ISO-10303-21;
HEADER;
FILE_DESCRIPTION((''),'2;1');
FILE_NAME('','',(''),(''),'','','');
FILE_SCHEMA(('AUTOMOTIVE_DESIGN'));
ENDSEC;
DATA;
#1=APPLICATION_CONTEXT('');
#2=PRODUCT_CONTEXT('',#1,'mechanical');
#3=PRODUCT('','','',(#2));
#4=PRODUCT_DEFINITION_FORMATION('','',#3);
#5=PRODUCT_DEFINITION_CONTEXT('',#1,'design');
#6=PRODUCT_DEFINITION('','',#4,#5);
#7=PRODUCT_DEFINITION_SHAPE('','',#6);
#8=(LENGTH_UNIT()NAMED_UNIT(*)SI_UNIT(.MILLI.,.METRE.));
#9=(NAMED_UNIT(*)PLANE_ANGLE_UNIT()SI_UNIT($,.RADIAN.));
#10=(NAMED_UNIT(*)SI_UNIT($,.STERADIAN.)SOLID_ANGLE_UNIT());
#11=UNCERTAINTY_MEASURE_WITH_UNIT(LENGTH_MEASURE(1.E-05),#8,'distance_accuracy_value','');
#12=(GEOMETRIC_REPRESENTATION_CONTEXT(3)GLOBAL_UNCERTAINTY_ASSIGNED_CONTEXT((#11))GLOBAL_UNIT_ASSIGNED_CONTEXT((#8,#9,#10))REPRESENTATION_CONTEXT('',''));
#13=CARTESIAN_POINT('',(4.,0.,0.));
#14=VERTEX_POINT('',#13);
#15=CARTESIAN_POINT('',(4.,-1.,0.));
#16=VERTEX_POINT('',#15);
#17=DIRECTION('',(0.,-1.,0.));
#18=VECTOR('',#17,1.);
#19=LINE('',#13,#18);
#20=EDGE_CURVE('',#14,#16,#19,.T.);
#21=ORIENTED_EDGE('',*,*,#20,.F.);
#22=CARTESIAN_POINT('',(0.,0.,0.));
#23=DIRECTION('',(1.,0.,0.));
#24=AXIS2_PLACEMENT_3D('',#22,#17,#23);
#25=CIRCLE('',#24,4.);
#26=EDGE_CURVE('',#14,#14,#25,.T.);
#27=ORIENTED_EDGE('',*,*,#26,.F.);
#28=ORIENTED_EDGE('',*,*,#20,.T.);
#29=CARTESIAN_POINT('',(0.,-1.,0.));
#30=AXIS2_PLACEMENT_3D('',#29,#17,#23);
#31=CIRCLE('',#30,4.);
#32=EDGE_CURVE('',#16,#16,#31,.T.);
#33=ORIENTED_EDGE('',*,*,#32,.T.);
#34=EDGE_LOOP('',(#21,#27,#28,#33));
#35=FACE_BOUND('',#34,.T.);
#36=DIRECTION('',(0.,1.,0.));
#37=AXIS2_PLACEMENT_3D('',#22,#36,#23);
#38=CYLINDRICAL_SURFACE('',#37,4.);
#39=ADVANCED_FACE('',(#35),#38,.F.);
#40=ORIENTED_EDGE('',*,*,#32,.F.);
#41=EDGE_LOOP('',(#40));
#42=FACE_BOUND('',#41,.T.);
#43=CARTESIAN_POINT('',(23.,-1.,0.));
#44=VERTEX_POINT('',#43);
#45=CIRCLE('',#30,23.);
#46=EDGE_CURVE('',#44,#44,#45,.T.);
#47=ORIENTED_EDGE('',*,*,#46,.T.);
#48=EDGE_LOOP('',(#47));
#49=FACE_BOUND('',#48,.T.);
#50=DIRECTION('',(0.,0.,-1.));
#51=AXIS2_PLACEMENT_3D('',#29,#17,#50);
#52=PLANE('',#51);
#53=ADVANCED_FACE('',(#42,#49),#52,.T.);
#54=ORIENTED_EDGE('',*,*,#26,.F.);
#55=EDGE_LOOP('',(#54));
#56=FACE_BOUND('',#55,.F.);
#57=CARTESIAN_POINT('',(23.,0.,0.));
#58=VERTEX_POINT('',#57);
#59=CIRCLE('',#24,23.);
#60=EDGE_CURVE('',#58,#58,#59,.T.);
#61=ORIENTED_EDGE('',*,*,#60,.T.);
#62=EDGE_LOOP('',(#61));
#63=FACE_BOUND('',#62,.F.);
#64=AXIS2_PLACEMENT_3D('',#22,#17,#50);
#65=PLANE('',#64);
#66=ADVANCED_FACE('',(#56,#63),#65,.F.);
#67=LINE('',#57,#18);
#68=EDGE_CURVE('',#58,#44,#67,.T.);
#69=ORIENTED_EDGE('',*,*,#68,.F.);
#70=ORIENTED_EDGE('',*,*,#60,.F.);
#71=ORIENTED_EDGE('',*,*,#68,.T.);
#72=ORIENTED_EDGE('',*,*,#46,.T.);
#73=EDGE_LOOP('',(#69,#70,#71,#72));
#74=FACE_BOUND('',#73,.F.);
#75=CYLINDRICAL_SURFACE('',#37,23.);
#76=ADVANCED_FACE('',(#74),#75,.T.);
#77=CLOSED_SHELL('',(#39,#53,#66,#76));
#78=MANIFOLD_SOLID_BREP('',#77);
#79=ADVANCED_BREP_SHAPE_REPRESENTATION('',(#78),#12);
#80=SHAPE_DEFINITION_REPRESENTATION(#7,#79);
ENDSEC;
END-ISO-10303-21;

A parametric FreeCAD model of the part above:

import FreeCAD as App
import Part
import Sketcher
Q = App.Units.Quantity

doc = App.newDocument("Part")
body = doc.addObject("PartDesign::Body", "Body")

# Sketch on XZ plane
sketch1 = body.newObject("Sketcher::SketchObject", "Sketch")
sketch1.AttachmentSupport = (doc.getObject("XZ_Plane"), [""])
sketch1.MapMode = "FlatFace"
sketch1.addGeometry([
    Part.Circle(App.Vector(0, 0, 0), App.Vector(0, 0, 1), 23),
    Part.Circle(App.Vector(0, 0, 0), App.Vector(0, 0, 1), 4),
], False)
sketch1.addConstraint([
    Sketcher.Constraint("Coincident", 0, 3, -1, 1),
    Sketcher.Constraint("Coincident", 1, 3, -1, 1),
    Sketcher.Constraint("Diameter", 0, Q("46 mm")),
    Sketcher.Constraint("Diameter", 1, Q("8 mm")),
])
pad1 = body.newObject("PartDesign::Pad", "Pad")
pad1.Profile = sketch1
pad1.Length = 1

doc.recompute()
